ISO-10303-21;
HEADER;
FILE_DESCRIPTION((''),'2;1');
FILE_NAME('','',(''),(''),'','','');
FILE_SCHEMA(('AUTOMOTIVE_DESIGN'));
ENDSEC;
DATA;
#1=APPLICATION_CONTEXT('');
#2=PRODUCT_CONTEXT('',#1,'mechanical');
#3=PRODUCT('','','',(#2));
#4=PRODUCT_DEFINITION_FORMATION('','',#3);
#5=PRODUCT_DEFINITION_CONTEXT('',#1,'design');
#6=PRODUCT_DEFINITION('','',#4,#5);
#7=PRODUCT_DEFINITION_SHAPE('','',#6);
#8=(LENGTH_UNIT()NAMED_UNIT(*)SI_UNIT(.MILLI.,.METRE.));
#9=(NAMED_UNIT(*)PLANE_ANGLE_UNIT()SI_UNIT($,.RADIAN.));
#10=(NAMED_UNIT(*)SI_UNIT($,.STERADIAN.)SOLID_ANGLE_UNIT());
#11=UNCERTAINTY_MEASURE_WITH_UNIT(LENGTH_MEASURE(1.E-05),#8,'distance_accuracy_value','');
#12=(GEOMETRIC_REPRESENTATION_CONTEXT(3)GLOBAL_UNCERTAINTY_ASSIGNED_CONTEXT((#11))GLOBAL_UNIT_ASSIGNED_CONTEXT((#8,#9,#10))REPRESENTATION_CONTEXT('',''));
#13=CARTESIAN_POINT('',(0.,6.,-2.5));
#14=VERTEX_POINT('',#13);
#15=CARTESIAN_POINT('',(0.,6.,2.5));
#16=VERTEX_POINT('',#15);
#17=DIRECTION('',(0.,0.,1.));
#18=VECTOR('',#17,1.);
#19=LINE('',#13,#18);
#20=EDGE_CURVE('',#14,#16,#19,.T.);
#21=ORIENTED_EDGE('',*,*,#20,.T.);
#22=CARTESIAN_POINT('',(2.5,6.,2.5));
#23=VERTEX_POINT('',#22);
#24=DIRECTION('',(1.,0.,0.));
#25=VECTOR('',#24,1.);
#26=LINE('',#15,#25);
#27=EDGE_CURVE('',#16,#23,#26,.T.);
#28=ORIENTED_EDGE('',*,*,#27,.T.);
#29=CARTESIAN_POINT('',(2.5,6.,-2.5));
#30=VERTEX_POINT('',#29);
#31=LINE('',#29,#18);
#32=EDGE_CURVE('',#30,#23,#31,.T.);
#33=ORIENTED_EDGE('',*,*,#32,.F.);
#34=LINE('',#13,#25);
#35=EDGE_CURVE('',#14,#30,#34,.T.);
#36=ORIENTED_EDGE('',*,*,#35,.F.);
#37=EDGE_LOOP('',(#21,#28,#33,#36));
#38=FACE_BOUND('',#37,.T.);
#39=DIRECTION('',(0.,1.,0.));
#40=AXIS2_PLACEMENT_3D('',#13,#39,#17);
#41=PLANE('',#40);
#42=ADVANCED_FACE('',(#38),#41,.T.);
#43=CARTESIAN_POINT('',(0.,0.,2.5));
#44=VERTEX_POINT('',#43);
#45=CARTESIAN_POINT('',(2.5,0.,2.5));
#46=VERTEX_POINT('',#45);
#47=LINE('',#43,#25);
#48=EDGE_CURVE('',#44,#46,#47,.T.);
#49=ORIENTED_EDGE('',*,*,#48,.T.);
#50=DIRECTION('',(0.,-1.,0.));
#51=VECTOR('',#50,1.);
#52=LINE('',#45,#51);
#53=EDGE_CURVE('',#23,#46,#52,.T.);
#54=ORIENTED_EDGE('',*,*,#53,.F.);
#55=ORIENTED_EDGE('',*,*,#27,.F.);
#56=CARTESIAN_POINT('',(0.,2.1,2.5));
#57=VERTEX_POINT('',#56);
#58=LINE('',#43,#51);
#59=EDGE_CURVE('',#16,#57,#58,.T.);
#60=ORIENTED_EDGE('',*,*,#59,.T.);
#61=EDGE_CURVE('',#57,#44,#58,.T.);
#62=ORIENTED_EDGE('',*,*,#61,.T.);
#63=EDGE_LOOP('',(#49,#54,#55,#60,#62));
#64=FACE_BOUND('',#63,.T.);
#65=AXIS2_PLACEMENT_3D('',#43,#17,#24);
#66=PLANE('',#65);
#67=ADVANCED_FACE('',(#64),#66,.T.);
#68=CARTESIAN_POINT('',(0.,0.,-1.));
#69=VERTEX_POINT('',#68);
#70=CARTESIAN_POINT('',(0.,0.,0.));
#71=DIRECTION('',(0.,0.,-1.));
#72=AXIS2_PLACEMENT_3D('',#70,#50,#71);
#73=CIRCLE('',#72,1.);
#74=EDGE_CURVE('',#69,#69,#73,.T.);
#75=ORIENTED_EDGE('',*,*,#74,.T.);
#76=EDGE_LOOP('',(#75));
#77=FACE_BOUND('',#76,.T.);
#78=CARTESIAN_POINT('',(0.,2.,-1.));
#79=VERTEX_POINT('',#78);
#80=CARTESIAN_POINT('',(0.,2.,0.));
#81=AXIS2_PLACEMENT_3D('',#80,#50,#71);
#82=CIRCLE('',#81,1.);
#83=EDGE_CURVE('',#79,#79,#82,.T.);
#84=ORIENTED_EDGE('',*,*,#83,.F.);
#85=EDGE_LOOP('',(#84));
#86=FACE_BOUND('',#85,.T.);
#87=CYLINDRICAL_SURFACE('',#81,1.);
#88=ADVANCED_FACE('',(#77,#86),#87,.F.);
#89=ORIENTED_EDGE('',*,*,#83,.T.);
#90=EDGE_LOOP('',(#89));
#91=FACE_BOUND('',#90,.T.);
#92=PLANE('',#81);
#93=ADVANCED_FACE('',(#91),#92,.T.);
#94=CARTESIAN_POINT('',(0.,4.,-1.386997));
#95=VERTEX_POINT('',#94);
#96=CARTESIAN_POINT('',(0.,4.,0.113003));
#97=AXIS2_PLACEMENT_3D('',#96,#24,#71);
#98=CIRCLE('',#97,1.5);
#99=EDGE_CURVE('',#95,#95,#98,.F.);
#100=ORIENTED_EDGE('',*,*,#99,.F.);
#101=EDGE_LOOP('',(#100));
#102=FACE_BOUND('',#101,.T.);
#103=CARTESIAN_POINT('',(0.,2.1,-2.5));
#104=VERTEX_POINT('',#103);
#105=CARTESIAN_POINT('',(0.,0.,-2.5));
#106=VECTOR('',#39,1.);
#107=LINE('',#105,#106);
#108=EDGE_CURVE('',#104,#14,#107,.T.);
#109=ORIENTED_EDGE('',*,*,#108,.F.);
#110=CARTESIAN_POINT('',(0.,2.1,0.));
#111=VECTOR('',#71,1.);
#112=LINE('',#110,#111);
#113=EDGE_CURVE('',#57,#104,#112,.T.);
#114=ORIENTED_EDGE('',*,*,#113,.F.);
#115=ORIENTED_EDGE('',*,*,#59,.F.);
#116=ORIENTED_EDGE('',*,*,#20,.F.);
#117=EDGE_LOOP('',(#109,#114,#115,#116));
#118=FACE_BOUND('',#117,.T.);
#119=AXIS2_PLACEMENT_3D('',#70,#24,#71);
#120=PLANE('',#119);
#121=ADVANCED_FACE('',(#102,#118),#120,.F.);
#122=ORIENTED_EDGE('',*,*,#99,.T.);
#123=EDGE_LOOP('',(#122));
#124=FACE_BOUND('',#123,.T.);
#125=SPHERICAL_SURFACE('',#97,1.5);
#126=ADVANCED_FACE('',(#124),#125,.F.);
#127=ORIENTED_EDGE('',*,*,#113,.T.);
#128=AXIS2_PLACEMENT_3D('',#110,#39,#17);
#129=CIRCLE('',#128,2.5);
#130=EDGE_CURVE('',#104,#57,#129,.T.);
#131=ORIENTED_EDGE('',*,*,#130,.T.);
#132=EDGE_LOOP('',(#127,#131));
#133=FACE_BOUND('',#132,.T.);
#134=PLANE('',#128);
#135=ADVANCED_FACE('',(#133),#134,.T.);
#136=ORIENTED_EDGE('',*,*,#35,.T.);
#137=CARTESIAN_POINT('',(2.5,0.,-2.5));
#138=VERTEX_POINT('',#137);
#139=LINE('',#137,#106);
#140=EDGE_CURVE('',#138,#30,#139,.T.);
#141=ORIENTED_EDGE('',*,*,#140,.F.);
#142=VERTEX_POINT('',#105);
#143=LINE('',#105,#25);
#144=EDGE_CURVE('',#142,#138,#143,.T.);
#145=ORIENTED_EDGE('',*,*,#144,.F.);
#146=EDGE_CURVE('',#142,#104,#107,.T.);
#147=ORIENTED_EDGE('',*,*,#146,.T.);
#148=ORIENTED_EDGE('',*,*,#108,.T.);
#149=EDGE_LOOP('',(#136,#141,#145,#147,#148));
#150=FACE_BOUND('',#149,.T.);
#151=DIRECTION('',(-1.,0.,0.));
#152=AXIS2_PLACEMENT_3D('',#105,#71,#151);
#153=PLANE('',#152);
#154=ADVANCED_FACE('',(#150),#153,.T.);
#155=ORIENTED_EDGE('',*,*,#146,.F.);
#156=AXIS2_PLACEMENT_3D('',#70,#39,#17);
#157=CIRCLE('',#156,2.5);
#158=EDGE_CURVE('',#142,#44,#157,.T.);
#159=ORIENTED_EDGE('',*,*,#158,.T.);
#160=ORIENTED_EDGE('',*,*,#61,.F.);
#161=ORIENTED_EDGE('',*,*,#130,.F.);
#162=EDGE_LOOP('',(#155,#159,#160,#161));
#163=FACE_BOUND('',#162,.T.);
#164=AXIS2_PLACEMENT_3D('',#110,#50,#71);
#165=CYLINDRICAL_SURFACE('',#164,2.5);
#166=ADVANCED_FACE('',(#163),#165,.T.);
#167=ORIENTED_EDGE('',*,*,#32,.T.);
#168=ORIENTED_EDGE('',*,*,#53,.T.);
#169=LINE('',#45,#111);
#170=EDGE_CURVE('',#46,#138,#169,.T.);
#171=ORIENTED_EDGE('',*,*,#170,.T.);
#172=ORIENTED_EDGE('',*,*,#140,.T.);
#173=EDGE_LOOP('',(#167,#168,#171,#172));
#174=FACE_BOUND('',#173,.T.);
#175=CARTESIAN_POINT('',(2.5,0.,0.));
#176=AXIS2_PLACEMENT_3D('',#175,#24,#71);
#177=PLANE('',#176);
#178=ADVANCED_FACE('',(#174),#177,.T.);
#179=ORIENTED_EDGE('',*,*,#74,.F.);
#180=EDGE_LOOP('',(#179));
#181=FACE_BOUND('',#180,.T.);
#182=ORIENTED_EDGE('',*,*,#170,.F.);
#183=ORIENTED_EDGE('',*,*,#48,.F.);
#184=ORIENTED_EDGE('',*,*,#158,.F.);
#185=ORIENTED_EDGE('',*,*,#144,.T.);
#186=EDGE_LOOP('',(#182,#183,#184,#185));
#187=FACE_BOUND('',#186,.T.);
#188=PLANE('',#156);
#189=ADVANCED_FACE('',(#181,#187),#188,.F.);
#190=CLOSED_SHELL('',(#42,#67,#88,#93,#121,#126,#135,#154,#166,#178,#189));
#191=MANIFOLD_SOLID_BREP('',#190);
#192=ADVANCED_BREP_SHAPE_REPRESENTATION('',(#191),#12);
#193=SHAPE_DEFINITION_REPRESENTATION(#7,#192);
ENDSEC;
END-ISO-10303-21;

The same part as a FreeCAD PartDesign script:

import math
import FreeCAD as App
import Part
import Sketcher

doc = App.newDocument("Part")
params = doc.addObject("Spreadsheet::Sheet", "Params")
for row, (alias, value) in enumerate([
    ("sketch1_diameter", "5 mm"),
    ("pad1_length", "2.1 mm"),
    ("sketch2_width", "6 mm"),
    ("sketch2_height", "5 mm"),
    ("pad2_length", "2.5 mm"),
    ("sketch3_radius", "1.5 mm"),
    ("groove_angle", "360 deg"),
    ("sketch4_diameter", "2 mm"),
    ("pocket1_length", "2 mm"),
], start=1):
    params.set(f"A{row}", alias)
    params.set(f"B{row}", "=" + value)
    params.setAlias(f"B{row}", alias)

body = doc.addObject("PartDesign::Body", "Body")

sketch1 = body.newObject("Sketcher::SketchObject", "Sketch")
sketch1.AttachmentSupport = (doc.getObject("XZ_Plane"), [""])
sketch1.MapMode = "FlatFace"
sketch1.addGeometry(Part.Circle(App.Vector(0, 0, 0), App.Vector(0, 0, 1), 2.5), False)
sketch1.addConstraint([
    Sketcher.Constraint("Coincident", 0, 3, -1, 1),
    Sketcher.Constraint("Diameter", 0, 5.0),
])
sketch1.setExpression("Constraints[1]", "Params.sketch1_diameter")
pad1 = body.newObject("PartDesign::Pad", "Pad")
pad1.Profile = sketch1
pad1.setExpression("Length", "Params.pad1_length")
pad1.Reversed = True

sketch2 = body.newObject("Sketcher::SketchObject", "Sketch001")
sketch2.AttachmentSupport = (doc.getObject("YZ_Plane"), [""])
sketch2.MapMode = "FlatFace"
sketch2.AttachmentOffset = App.Placement(App.Vector(0, 0, 2.5), App.Rotation())
sketch2.addGeometry([
    Part.LineSegment(App.Vector(6, 2, 0), App.Vector(0, 2, 0)),
    Part.LineSegment(App.Vector(0, 2, 0), App.Vector(0, -2, 0)),
    Part.LineSegment(App.Vector(0, -2, 0), App.Vector(6, -2, 0)),
    Part.LineSegment(App.Vector(6, -2, 0), App.Vector(6, 2, 0)),
], False)
sketch2.addConstraint([
    Sketcher.Constraint("Coincident", 0, 2, 1, 1),
    Sketcher.Constraint("Coincident", 1, 2, 2, 1),
    Sketcher.Constraint("Coincident", 2, 2, 3, 1),
    Sketcher.Constraint("Coincident", 3, 2, 0, 1),
    Sketcher.Constraint("Horizontal", 0),
    Sketcher.Constraint("Vertical", 1),
    Sketcher.Constraint("Horizontal", 2),
    Sketcher.Constraint("Vertical", 3),
    Sketcher.Constraint("Symmetric", 0, 2, 1, 2, -1, 1),
    Sketcher.Constraint("DistanceX", 0, 2, 0, 1, 6.0),
    Sketcher.Constraint("DistanceY", 1, 2, 1, 1, 5.0),
])
sketch2.setExpression("Constraints[9]", "Params.sketch2_width")
sketch2.setExpression("Constraints[10]", "Params.sketch2_height")
pad2 = body.newObject("PartDesign::Pad", "Pad001")
pad2.Profile = sketch2
pad2.setExpression("Length", "Params.pad2_length")
pad2.Reversed = True

sketch3 = body.newObject("Sketcher::SketchObject", "Sketch002")
sketch3.AttachmentSupport = (doc.getObject("YZ_Plane"), [""])
sketch3.MapMode = "FlatFace"
sketch3.addGeometry([
    Part.LineSegment(App.Vector(4, -1.4, 0), App.Vector(4, 1.6, 0)),
    Part.ArcOfCircle(Part.Circle(App.Vector(4, 0.1, 0), App.Vector(0, 0, 1), 1.5), math.radians(-90), math.radians(90)),
], False)
sketch3.addGeometry(Part.LineSegment(App.Vector(4, -1.4, 0), App.Vector(4, 1.6, 0)), True)
sketch3.addConstraint([
    Sketcher.Constraint("Coincident", 0, 1, 1, 1),
    Sketcher.Constraint("Coincident", 1, 2, 0, 2),
    Sketcher.Constraint("Vertical", 0),
    Sketcher.Constraint("Vertical", 2),
    Sketcher.Constraint("Coincident", 2, 1, 0, 1),
    Sketcher.Constraint("Vertical", 1, 3, 0, 1),
    Sketcher.Constraint("Equal", 0, 2),
    Sketcher.Constraint("Radius", 1, 1.5),
    Sketcher.Constraint("DistanceX", -1, 1, 1, 3, 4.0),
    Sketcher.Constraint("DistanceY", -1, 1, 1, 3, 0.113003),
])
sketch3.setExpression("Constraints[7]", "Params.sketch3_radius")
groove = body.newObject("PartDesign::Groove", "Groove")
groove.Profile = sketch3
groove.ReferenceAxis = (sketch3, ["Axis0"])
groove.setExpression("Angle", "Params.groove_angle")

sketch4 = body.newObject("Sketcher::SketchObject", "Sketch003")
sketch4.AttachmentSupport = (doc.getObject("XZ_Plane"), [""])
sketch4.MapMode = "FlatFace"
sketch4.addGeometry(Part.Circle(App.Vector(0, 0, 0), App.Vector(0, 0, 1), 1), False)
sketch4.addConstraint([
    Sketcher.Constraint("Coincident", 0, 3, -1, 1),
    Sketcher.Constraint("Diameter", 0, 2.0),
])
sketch4.setExpression("Constraints[1]", "Params.sketch4_diameter")
pocket1 = body.newObject("PartDesign::Pocket", "Pocket")
pocket1.Profile = sketch4
pocket1.setExpression("Length", "Params.pocket1_length")

doc.recompute()
